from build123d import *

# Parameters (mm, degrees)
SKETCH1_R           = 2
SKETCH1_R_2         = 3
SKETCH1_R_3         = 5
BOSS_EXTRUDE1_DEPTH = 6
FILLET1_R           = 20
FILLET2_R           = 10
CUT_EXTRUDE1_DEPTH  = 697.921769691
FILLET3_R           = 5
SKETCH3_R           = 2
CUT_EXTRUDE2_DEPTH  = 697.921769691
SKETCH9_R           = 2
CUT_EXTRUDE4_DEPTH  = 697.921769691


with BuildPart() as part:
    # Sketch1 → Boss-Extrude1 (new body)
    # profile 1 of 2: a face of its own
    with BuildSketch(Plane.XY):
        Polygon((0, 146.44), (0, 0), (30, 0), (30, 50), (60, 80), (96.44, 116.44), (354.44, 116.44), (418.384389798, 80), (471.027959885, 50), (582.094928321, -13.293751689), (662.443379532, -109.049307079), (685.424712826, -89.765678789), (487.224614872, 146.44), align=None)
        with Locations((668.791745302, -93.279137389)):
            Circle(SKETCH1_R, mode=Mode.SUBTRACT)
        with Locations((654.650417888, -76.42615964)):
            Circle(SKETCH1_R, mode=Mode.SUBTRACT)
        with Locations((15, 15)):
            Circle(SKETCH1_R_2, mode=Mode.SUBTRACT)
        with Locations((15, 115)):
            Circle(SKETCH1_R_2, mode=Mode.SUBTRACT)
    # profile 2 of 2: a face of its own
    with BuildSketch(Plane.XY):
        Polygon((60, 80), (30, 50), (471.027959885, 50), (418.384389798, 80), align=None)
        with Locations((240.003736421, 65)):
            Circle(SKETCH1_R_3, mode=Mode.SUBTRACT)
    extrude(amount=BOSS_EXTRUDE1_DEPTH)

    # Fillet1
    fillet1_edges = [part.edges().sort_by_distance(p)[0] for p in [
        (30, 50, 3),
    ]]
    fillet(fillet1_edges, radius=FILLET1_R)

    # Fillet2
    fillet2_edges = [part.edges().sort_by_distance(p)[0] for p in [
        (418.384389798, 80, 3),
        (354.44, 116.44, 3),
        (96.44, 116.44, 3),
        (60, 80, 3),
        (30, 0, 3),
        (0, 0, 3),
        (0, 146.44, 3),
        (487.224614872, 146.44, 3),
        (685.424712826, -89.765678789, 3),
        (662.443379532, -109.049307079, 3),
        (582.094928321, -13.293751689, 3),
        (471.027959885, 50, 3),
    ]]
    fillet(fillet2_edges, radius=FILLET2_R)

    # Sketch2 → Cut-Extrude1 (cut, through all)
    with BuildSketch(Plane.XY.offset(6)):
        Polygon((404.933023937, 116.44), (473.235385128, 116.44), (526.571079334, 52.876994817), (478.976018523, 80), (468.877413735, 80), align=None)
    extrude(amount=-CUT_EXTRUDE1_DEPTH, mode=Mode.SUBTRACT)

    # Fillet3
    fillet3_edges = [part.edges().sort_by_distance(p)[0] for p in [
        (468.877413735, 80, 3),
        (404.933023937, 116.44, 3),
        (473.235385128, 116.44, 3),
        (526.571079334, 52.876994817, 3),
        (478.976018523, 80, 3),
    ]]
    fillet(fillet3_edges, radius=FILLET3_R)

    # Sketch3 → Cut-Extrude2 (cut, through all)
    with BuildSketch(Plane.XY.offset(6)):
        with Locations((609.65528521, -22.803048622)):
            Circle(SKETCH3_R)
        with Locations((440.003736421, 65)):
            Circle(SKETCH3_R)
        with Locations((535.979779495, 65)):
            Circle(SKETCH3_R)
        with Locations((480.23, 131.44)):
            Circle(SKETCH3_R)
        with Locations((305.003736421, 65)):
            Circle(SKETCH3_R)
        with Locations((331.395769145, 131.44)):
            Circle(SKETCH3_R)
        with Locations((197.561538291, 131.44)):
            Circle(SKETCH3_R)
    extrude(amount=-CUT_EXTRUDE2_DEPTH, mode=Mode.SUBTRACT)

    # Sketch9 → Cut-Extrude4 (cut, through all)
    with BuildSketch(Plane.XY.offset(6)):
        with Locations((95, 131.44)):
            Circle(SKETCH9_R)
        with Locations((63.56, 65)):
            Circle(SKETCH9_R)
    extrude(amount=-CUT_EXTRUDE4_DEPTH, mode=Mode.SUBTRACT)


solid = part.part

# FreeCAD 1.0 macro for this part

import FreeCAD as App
import Part
import Sketcher
Q = App.Units.Quantity


def edges_at(feature, points):
    """Names of the edges that pass closest to the given points."""
    edges = feature.Shape.Edges
    near = lambda p: min(range(len(edges)), key=lambda i: edges[i].distToShape(Part.Vertex(*p))[0])
    return sorted({f"Edge{near(p) + 1}" for p in points})

doc = App.newDocument("Part")
body = doc.addObject("PartDesign::Body", "Body")

sketch1 = body.newObject("Sketcher::SketchObject", "Sketch")
sketch1.AttachmentSupport = (doc.getObject("XY_Plane"), [""])
sketch1.MapMode = "FlatFace"
sketch1.addGeometry(Part.LineSegment(App.Vector(0, 146.44, 0), App.Vector(0, 0, 0)), False)
sketch1.addGeometry(Part.LineSegment(App.Vector(0, 0, 0), App.Vector(30, 0, 0)), False)
sketch1.addGeometry(Part.LineSegment(App.Vector(30, 0, 0), App.Vector(30, 50, 0)), False)
sketch1.addGeometry(Part.LineSegment(App.Vector(30, 50, 0), App.Vector(471.02796, 50, 0)), False)
sketch1.addGeometry(Part.LineSegment(App.Vector(471.02796, 50, 0), App.Vector(582.094928, -13.293752, 0)), False)
sketch1.addGeometry(Part.LineSegment(App.Vector(582.094928, -13.293752, 0), App.Vector(662.44338, -109.049307, 0)), False)
sketch1.addGeometry(Part.LineSegment(App.Vector(662.44338, -109.049307, 0), App.Vector(685.424713, -89.765679, 0)), False)
sketch1.addGeometry(Part.LineSegment(App.Vector(685.424713, -89.765679, 0), App.Vector(487.224615, 146.44, 0)), False)
sketch1.addGeometry(Part.LineSegment(App.Vector(487.224615, 146.44, 0), App.Vector(0, 146.44, 0)), False)
sketch1.addGeometry(Part.LineSegment(App.Vector(60, 80, 0), App.Vector(96.44, 116.44, 0)), False)
sketch1.addGeometry(Part.LineSegment(App.Vector(96.44, 116.44, 0), App.Vector(354.44, 116.44, 0)), False)
sketch1.addGeometry(Part.LineSegment(App.Vector(354.44, 116.44, 0), App.Vector(418.38439, 80, 0)), False)
sketch1.addGeometry(Part.LineSegment(App.Vector(418.38439, 80, 0), App.Vector(60, 80, 0)), False)
sketch1.addGeometry(Part.Circle(App.Vector(668.791745, -93.279137, 0), App.Vector(0, 0, 1), 2), False)
sketch1.addGeometry(Part.Circle(App.Vector(654.650418, -76.42616, 0), App.Vector(0, 0, 1), 2), False)
sketch1.addGeometry(Part.Circle(App.Vector(15, 15, 0), App.Vector(0, 0, 1), 3), False)
sketch1.addGeometry(Part.Circle(App.Vector(15, 115, 0), App.Vector(0, 0, 1), 3), False)
sketch1.addGeometry(Part.Circle(App.Vector(240.003736, 65, 0), App.Vector(0, 0, 1), 5), False)
sketch1.addConstraint(Sketcher.Constraint("Coincident", 0, 2, 1, 1))
sketch1.addConstraint(Sketcher.Constraint("Coincident", 1, 2, 2, 1))
sketch1.addConstraint(Sketcher.Constraint("Coincident", 2, 2, 3, 1))
sketch1.addConstraint(Sketcher.Constraint("Coincident", 3, 2, 4, 1))
sketch1.addConstraint(Sketcher.Constraint("Coincident", 4, 2, 5, 1))
sketch1.addConstraint(Sketcher.Constraint("Coincident", 5, 2, 6, 1))
sketch1.addConstraint(Sketcher.Constraint("Coincident", 6, 2, 7, 1))
sketch1.addConstraint(Sketcher.Constraint("Coincident", 7, 2, 8, 1))
sketch1.addConstraint(Sketcher.Constraint("Coincident", 8, 2, 0, 1))
sketch1.addConstraint(Sketcher.Constraint("Coincident", 9, 2, 10, 1))
sketch1.addConstraint(Sketcher.Constraint("Coincident", 10, 2, 11, 1))
sketch1.addConstraint(Sketcher.Constraint("Coincident", 11, 2, 12, 1))
sketch1.addConstraint(Sketcher.Constraint("Coincident", 12, 2, 9, 1))
sketch1.addConstraint(Sketcher.Constraint("Vertical", 0))
sketch1.addConstraint(Sketcher.Constraint("Horizontal", 1))
sketch1.addConstraint(Sketcher.Constraint("Vertical", 2))
sketch1.addConstraint(Sketcher.Constraint("Horizontal", 3))
sketch1.addConstraint(Sketcher.Constraint("Horizontal", 8))
sketch1.addConstraint(Sketcher.Constraint("Horizontal", 10))
sketch1.addConstraint(Sketcher.Constraint("Horizontal", 12))
sketch1.addConstraint(Sketcher.Constraint("Coincident", 0, 2, -1, 1))
sketch1.addConstraint(Sketcher.Constraint("Equal", 13, 14))
sketch1.addConstraint(Sketcher.Constraint("Equal", 15, 16))
sketch1.addConstraint(Sketcher.Constraint("Perpendicular", 5, 6))
sketch1.addConstraint(Sketcher.Constraint("Perpendicular", 6, 7))
sketch1.addConstraint(Sketcher.Constraint("Parallel", 4, 11))
sketch1.addConstraint(Sketcher.Constraint("Vertical", 15, 3, 16, 3))
sketch1.addConstraint(Sketcher.Constraint("Diameter", 13, Q("4 mm")))
sketch1.addConstraint(Sketcher.Constraint("Diameter", 15, Q("6 mm")))
sketch1.addConstraint(Sketcher.Constraint("Diameter", 17, Q("10 mm")))
sketch1.addConstraint(Sketcher.Constraint("DistanceX", 1, 1, 1, 2, Q("30 mm")))
sketch1.addConstraint(Sketcher.Constraint("DistanceX", 10, 1, 10, 2, Q("258 mm")))
sketch1.addConstraint(Sketcher.Constraint("DistanceY", 2, 1, 2, 2, Q("50 mm")))
sketch1.addConstraint(Sketcher.Constraint("Angle", 5, Q("-50 deg")))
sketch1.addConstraint(Sketcher.Constraint("Angle", 9, Q("45 deg")))
sketch1.addConstraint(Sketcher.Constraint("Distance", 5, Q("125 mm")))
sketch1.addConstraint(Sketcher.Constraint("Distance", 6, Q("30 mm")))
sketch1.addConstraint(Sketcher.Constraint("DistanceX", -1, 1, 15, 3, Q("15 mm")))
sketch1.addConstraint(Sketcher.Constraint("DistanceY", -1, 1, 15, 3, Q("15 mm")))
sketch1.addConstraint(Sketcher.Constraint("DistanceY", -1, 1, 16, 3, Q("115 mm")))
sketch1.addConstraint(Sketcher.Constraint("DistanceY", -1, 1, 17, 3, Q("65 mm")))
sketch1.addConstraint(Sketcher.Constraint("DistanceY", -1, 1, 11, 2, Q("80 mm")))
sketch1.addConstraint(Sketcher.Constraint("DistanceX", -1, 1, 12, 2, Q("60 mm")))
sketch1.addConstraint(Sketcher.Constraint("DistanceY", 9, 2, 8, 2, Q("30 mm")))
sketch1.addConstraint(Sketcher.Constraint("DistanceY", 0, 2, 0, 1, Q("146.44 mm")))
sketch1.addConstraint(Sketcher.Constraint("DistanceX", 3, 1, 3, 2, Q("441.02796 mm")))
sketch1.addConstraint(Sketcher.Constraint("DistanceX", 12, 2, 12, 1, Q("358.38439 mm")))
sketch1.addConstraint(Sketcher.Constraint("DistanceX", 8, 2, 8, 1, Q("487.224615 mm")))
sketch1.addConstraint(Sketcher.Constraint("DistanceY", 14, 3, -1, 1, Q("76.42616 mm")))
sketch1.addConstraint(Sketcher.Constraint("DistanceX", 17, 3, 14, 3, Q("414.646681 mm")))
sketch1.addConstraint(Sketcher.Constraint("DistanceX", 17, 3, 13, 3, Q("428.788009 mm")))
sketch1.addConstraint(Sketcher.Constraint("DistanceX", 3, 2, 14, 3, Q("183.622458 mm")))
sketch1.addConstraint(Sketcher.Constraint("DistanceY", 5, 2, 13, 3, Q("15.77017 mm")))
pad1 = body.newObject("PartDesign::Pad", "Pad")
pad1.Profile = sketch1
pad1.Length = 6
doc.recompute()

fillet = body.newObject("PartDesign::Fillet", "Fillet")
fillet.Base = (pad1, edges_at(pad1, [(30, 50, 3)]))
fillet.Radius = 20
doc.recompute()

fillet2 = body.newObject("PartDesign::Fillet", "Fillet001")
fillet2.Base = (fillet, edges_at(fillet, [
    (418.384, 80, 3),
    (354.44, 116.44, 3),
    (96.44, 116.44, 3),
    (60, 80, 3),
    (30, 0, 3),
    (0, 0, 3),
    (0, 146.44, 3),
    (487.225, 146.44, 3),
    (685.425, -89.766, 3),
    (662.443, -109.049, 3),
    (582.095, -13.294, 3),
    (471.028, 50, 3),
]))
fillet2.Radius = 10

sketch2 = body.newObject("Sketcher::SketchObject", "Sketch001")
sketch2.AttachmentSupport = (doc.getObject("XY_Plane"), [""])
sketch2.MapMode = "FlatFace"
sketch2.AttachmentOffset = App.Placement(App.Vector(0, 0, 6), App.Rotation())
sketch2.addGeometry(Part.LineSegment(App.Vector(473.235385, 116.44, 0), App.Vector(404.933024, 116.44, 0)), False)
sketch2.addGeometry(Part.LineSegment(App.Vector(404.933024, 116.44, 0), App.Vector(468.877414, 80, 0)), False)
sketch2.addGeometry(Part.LineSegment(App.Vector(468.877414, 80, 0), App.Vector(478.976019, 80, 0)), False)
sketch2.addGeometry(Part.LineSegment(App.Vector(478.976019, 80, 0), App.Vector(526.571079, 52.876995, 0)), False)
sketch2.addGeometry(Part.LineSegment(App.Vector(526.571079, 52.876995, 0), App.Vector(473.235385, 116.44, 0)), False)
sketch2.addConstraint(Sketcher.Constraint("Coincident", 0, 2, 1, 1))
sketch2.addConstraint(Sketcher.Constraint("Coincident", 1, 2, 2, 1))
sketch2.addConstraint(Sketcher.Constraint("Coincident", 2, 2, 3, 1))
sketch2.addConstraint(Sketcher.Constraint("Coincident", 3, 2, 4, 1))
sketch2.addConstraint(Sketcher.Constraint("Coincident", 4, 2, 0, 1))
sketch2.addConstraint(Sketcher.Constraint("Horizontal", 0))
sketch2.addConstraint(Sketcher.Constraint("Horizontal", 2))
sketch2.addConstraint(Sketcher.Constraint("Parallel", 1, 3))
sketch2.addConstraint(Sketcher.Constraint("Angle", 4, Q("130 deg")))
sketch2.addConstraint(Sketcher.Constraint("DistanceY", -1, 1, 1, 2, Q("80 mm")))
sketch2.addConstraint(Sketcher.Constraint("DistanceY", -1, 1, 0, 2, Q("116.44 mm")))
sketch2.addConstraint(Sketcher.Constraint("Distance", 3, Q("54.780902 mm")))
sketch2.addConstraint(Sketcher.Constraint("DistanceX", 0, 2, 0, 1, Q("68.302361 mm")))
sketch2.addConstraint(Sketcher.Constraint("Distance", 1, Q("73.598632 mm")))
sketch2.addConstraint(Sketcher.Constraint("DistanceX", -1, 1, 2, 2, Q("478.976019 mm")))
pocket1 = body.newObject("PartDesign::Pocket", "Pocket")
pocket1.Profile = sketch2
pocket1.Type = "ThroughAll"
doc.recompute()

fillet3 = body.newObject("PartDesign::Fillet", "Fillet002")
fillet3.Base = (pocket1, edges_at(pocket1, [
    (468.877, 80, 3),
    (404.933, 116.44, 3),
    (473.235, 116.44, 3),
    (526.571, 52.877, 3),
    (478.976, 80, 3),
]))
fillet3.Radius = 5

sketch3 = body.newObject("Sketcher::SketchObject", "Sketch002")
sketch3.AttachmentSupport = (doc.getObject("XY_Plane"), [""])
sketch3.MapMode = "FlatFace"
sketch3.AttachmentOffset = App.Placement(App.Vector(0, 0, 6), App.Rotation())
sketch3.addGeometry(Part.Circle(App.Vector(609.655285, -22.803049, 0), App.Vector(0, 0, 1), 2), False)
sketch3.addGeometry(Part.Circle(App.Vector(440.003736, 65, 0), App.Vector(0, 0, 1), 2), False)
sketch3.addGeometry(Part.Circle(App.Vector(535.979779, 65, 0), App.Vector(0, 0, 1), 2), False)
sketch3.addGeometry(Part.Circle(App.Vector(480.23, 131.44, 0), App.Vector(0, 0, 1), 2), False)
sketch3.addGeometry(Part.Circle(App.Vector(305.003736, 65, 0), App.Vector(0, 0, 1), 2), False)
sketch3.addGeometry(Part.Circle(App.Vector(331.395769, 131.44, 0), App.Vector(0, 0, 1), 2), False)
sketch3.addGeometry(Part.Circle(App.Vector(197.561538, 131.44, 0), App.Vector(0, 0, 1), 2), False)
sketch3.addConstraint(Sketcher.Constraint("Equal", 0, 1))
sketch3.addConstraint(Sketcher.Constraint("Equal", 1, 2))
sketch3.addConstraint(Sketcher.Constraint("Equal", 2, 3))
sketch3.addConstraint(Sketcher.Constraint("Equal", 3, 4))
sketch3.addConstraint(Sketcher.Constraint("Equal", 4, 5))
sketch3.addConstraint(Sketcher.Constraint("Equal", 5, 6))
sketch3.addConstraint(Sketcher.Constraint("Horizontal", 1, 3, 2, 3))
sketch3.addConstraint(Sketcher.Constraint("Horizontal", 2, 3, 4, 3))
sketch3.addConstraint(Sketcher.Constraint("Horizontal", 3, 3, 5, 3))
sketch3.addConstraint(Sketcher.Constraint("Horizontal", 5, 3, 6, 3))
sketch3.addConstraint(Sketcher.Constraint("Diameter", 0, Q("4 mm")))
sketch3.addConstraint(Sketcher.Constraint("DistanceY", -1, 1, 1, 3, Q("65 mm")))
sketch3.addConstraint(Sketcher.Constraint("DistanceX", 4, 3, 1, 3, Q("135 mm")))
sketch3.addConstraint(Sketcher.Constraint("DistanceX", -1, 1, 3, 3, Q("480.23 mm")))
sketch3.addConstraint(Sketcher.Constraint("DistanceY", -1, 1, 3, 3, Q("131.44 mm")))
sketch3.addConstraint(Sketcher.Constraint("DistanceX", 6, 3, 4, 3, Q("107.442198 mm")))
sketch3.addConstraint(Sketcher.Constraint("DistanceY", 0, 3, -1, 1, Q("22.803049 mm")))
sketch3.addConstraint(Sketcher.Constraint("DistanceX", -1, 1, 2, 3, Q("535.979779 mm")))
sketch3.addConstraint(Sketcher.Constraint("DistanceX", -1, 1, 5, 3, Q("331.395769 mm")))
sketch3.addConstraint(Sketcher.Constraint("DistanceX", -1, 1, 6, 3, Q("197.561538 mm")))
sketch3.addConstraint(Sketcher.Constraint("DistanceX", 1, 3, 0, 3, Q("169.651549 mm")))
pocket2 = body.newObject("PartDesign::Pocket", "Pocket001")
pocket2.Profile = sketch3
pocket2.Type = "ThroughAll"

sketch4 = body.newObject("Sketcher::SketchObject", "Sketch003")
sketch4.AttachmentSupport = (doc.getObject("XY_Plane"), [""])
sketch4.MapMode = "FlatFace"
sketch4.AttachmentOffset = App.Placement(App.Vector(0, 0, 6), App.Rotation())
sketch4.addGeometry(Part.Circle(App.Vector(95, 131.44, 0), App.Vector(0, 0, 1), 2), False)
sketch4.addGeometry(Part.Circle(App.Vector(63.56, 65, 0), App.Vector(0, 0, 1), 2), False)
sketch4.addConstraint(Sketcher.Constraint("Equal", 0, 1))
sketch4.addConstraint(Sketcher.Constraint("Diameter", 0, Q("4 mm")))
sketch4.addConstraint(Sketcher.Constraint("DistanceX", -1, 1, 0, 3, Q("95 mm")))
sketch4.addConstraint(Sketcher.Constraint("DistanceY", -1, 1, 1, 3, Q("65 mm")))
sketch4.addConstraint(Sketcher.Constraint("DistanceY", -1, 1, 0, 3, Q("131.44 mm")))
sketch4.addConstraint(Sketcher.Constraint("DistanceX", -1, 1, 1, 3, Q("63.56 mm")))
pocket3 = body.newObject("PartDesign::Pocket", "Pocket002")
pocket3.Profile = sketch4
pocket3.Type = "ThroughAll"

doc.recompute()
